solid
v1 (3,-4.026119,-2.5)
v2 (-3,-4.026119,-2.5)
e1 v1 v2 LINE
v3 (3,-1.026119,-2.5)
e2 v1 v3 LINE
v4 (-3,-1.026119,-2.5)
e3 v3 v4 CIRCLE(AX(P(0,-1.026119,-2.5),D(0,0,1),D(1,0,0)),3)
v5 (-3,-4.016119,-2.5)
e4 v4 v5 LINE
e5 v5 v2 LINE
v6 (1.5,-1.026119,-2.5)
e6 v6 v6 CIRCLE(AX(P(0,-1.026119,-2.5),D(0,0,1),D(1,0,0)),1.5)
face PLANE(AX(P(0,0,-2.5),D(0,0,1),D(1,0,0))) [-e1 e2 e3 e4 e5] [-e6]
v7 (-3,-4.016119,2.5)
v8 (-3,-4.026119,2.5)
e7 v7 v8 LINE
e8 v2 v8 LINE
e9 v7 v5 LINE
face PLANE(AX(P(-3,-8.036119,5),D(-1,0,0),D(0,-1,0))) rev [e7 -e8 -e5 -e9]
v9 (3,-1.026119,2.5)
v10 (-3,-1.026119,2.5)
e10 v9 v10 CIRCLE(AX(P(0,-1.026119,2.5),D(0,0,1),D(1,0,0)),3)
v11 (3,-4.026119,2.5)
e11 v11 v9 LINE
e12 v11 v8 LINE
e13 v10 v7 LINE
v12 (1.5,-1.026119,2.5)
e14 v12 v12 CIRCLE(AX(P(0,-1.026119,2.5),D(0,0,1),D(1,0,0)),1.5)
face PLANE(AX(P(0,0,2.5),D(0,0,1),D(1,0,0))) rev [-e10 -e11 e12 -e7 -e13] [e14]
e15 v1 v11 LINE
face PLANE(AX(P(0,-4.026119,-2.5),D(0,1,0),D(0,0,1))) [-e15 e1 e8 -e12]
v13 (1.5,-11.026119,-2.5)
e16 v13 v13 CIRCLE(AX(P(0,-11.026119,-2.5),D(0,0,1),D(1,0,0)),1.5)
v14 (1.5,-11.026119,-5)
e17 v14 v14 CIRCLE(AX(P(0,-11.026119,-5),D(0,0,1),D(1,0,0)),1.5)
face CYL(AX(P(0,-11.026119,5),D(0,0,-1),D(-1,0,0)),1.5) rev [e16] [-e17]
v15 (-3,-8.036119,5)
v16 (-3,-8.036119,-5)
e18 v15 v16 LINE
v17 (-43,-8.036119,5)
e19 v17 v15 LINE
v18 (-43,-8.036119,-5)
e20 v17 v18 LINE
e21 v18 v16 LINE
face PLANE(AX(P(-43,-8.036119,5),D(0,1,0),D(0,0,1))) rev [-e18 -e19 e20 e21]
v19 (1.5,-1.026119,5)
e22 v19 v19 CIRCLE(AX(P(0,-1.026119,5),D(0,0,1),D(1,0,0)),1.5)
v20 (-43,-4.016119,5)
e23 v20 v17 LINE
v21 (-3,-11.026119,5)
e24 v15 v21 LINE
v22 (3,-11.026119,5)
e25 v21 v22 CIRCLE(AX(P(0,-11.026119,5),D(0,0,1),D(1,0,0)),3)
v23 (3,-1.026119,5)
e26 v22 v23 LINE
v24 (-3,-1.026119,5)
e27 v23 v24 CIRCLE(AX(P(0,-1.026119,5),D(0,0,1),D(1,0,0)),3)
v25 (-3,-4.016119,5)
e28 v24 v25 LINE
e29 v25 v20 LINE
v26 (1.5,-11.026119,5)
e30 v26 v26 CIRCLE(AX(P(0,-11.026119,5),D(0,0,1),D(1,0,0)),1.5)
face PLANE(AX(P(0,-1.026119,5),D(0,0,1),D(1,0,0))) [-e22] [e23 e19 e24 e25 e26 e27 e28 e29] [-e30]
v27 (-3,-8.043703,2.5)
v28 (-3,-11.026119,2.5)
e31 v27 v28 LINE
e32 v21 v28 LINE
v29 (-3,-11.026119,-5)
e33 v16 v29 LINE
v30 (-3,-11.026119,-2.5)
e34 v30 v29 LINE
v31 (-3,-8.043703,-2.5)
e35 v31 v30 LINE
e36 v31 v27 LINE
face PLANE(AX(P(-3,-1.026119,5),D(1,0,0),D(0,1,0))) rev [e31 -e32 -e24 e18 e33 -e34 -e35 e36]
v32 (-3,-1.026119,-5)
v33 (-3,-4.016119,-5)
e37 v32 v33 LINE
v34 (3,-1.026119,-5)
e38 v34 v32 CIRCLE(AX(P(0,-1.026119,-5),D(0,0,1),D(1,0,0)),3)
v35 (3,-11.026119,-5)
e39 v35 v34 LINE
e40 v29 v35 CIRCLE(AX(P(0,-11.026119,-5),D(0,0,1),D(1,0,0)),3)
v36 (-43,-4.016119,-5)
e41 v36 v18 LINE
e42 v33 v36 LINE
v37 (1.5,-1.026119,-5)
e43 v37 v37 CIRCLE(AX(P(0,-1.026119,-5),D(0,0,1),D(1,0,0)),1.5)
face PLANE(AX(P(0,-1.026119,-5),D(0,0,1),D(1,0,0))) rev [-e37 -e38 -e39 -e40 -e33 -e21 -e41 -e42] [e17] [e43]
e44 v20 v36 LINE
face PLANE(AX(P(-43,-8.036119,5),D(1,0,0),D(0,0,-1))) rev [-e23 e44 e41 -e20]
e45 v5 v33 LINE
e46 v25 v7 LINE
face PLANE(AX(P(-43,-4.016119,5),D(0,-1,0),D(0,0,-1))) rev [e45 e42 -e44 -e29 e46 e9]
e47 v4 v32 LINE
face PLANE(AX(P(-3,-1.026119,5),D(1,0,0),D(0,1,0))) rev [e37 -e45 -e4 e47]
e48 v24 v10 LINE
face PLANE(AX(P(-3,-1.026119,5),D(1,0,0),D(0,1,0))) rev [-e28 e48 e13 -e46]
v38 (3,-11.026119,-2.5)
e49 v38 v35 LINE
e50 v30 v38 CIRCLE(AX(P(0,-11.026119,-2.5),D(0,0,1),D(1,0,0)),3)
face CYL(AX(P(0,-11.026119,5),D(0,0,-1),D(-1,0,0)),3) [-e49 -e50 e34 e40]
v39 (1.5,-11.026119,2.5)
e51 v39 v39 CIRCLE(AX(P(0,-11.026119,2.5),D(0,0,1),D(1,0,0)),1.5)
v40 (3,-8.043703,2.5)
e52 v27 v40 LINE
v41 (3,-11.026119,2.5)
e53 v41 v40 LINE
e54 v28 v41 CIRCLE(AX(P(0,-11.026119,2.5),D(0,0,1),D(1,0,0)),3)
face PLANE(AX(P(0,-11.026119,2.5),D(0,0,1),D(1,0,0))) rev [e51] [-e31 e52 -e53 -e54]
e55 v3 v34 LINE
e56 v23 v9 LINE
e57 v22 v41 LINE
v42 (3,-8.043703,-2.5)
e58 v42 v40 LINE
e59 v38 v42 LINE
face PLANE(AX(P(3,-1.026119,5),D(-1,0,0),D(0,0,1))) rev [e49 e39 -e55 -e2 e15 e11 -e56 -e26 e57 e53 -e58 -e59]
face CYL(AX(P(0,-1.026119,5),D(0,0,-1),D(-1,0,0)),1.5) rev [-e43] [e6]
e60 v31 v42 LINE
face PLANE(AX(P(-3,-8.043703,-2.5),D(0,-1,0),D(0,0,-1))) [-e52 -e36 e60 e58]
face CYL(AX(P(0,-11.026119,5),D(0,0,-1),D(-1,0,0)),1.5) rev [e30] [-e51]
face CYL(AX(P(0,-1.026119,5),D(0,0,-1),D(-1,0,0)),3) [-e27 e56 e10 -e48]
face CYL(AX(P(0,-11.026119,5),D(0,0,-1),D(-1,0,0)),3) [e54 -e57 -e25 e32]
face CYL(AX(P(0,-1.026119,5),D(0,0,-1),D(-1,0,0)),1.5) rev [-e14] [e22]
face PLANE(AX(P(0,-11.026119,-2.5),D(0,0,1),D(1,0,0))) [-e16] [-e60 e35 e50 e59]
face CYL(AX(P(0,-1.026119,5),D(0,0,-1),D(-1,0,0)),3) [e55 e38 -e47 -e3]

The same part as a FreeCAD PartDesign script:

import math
import FreeCAD as App
import Part
import Sketcher


def add_polygon(sketch, points):
    """Adds a closed chain of lines whose ends are joined by coincident constraints."""
    first, n = sketch.GeometryCount, len(points)
    for a, b in zip(points, points[1:] + points[:1]):
        sketch.addGeometry(Part.LineSegment(App.Vector(*a, 0), App.Vector(*b, 0)), False)
    for i in range(n):
        sketch.addConstraint(Sketcher.Constraint("Coincident", first + i, 2, first + (i + 1) % n, 1))

doc = App.newDocument("Part")
params = doc.addObject("Spreadsheet::Sheet", "Params")
for row, (alias, value) in enumerate([
    ("sketch1_diameter", "3 mm"),
    ("sketch1_radius", "3 mm"),
    ("sketch1_height", "10 mm"),
    ("pad1_length", "10 mm"),
    ("sketch2_radius", "3 mm"),
    ("sketch2_height", "3 mm"),
    ("pocket1_length", "5 mm"),
    ("sketch3_width", "40 mm"),
    ("sketch3_height", "4.02 mm"),
    ("pad2_length", "10 mm"),
], start=1):
    params.set(f"A{row}", alias)
    params.set(f"B{row}", "=" + value)
    params.setAlias(f"B{row}", alias)

body = doc.addObject("PartDesign::Body", "Body")

sketch1 = doc.addObject("Sketcher::SketchObject", "Sketch")
body.addObject(sketch1)
sketch1.AttachmentSupport = (doc.XY_Plane, [""])
sketch1.MapMode = "FlatFace"
sketch1.addGeometry([
    Part.LineSegment(App.Vector(-3, -1.026119, 0), App.Vector(-3, -11.026119, 0)),
    Part.ArcOfCircle(Part.Circle(App.Vector(0, -11.026119, 0), App.Vector(0, 0, 1), 3), math.radians(180), math.radians(360)),
    Part.LineSegment(App.Vector(3, -11.026119, 0), App.Vector(3, -1.026119, 0)),
    Part.ArcOfCircle(Part.Circle(App.Vector(0, -1.026119, 0), App.Vector(0, 0, 1), 3), math.radians(0), math.radians(180)),
    Part.Circle(App.Vector(0, -11.026119, 0), App.Vector(0, 0, 1), 1.5),
    Part.Circle(App.Vector(0, -1.026119, 0), App.Vector(0, 0, 1), 1.5),
], False)
sketch1.addConstraint([
    Sketcher.Constraint("Tangent", 0, 2, 1, 1),
    Sketcher.Constraint("Tangent", 1, 2, 2, 1),
    Sketcher.Constraint("Tangent", 2, 2, 3, 1),
    Sketcher.Constraint("Tangent", 3, 2, 0, 1),
    Sketcher.Constraint("Vertical", 0),
    Sketcher.Constraint("Vertical", 2),
    Sketcher.Constraint("Coincident", 4, 3, 1, 3),
    Sketcher.Constraint("Coincident", 5, 3, 3, 3),
    Sketcher.Constraint("Equal", 4, 5),
    Sketcher.Constraint("PointOnObject", 1, 3, -2),
    Sketcher.Constraint("Diameter", 4, 3.0),
    Sketcher.Constraint("Radius", 1, 3.0),
    Sketcher.Constraint("DistanceY", 0, 2, 0, 1, 10.0),
    Sketcher.Constraint("DistanceY", 1, 3, -1, 1, 11.026119),
])
sketch1.setExpression("Constraints[10]", "Params.sketch1_diameter")
sketch1.setExpression("Constraints[11]", "Params.sketch1_radius")
sketch1.setExpression("Constraints[12]", "Params.sketch1_height")
pad1 = doc.addObject("PartDesign::Pad", "Pad")
body.addObject(pad1)
pad1.Profile = sketch1
pad1.setExpression("Length", "Params.pad1_length")
pad1.Midplane = True

sketch2 = doc.addObject("Sketcher::SketchObject", "Sketch001")
body.addObject(sketch2)
sketch2.AttachmentSupport = (doc.XY_Plane, [""])
sketch2.MapMode = "FlatFace"
sketch2.addGeometry([
    Part.LineSegment(App.Vector(-3, -1.026119, 0), App.Vector(-3, -4.026119, 0)),
    Part.LineSegment(App.Vector(-3, -4.026119, 0), App.Vector(3, -4.026119, 0)),
    Part.LineSegment(App.Vector(3, -4.026119, 0), App.Vector(3, -1.026119, 0)),
    Part.ArcOfCircle(Part.Circle(App.Vector(0, -1.026119, 0), App.Vector(0, 0, 1), 3), math.radians(0), math.radians(180)),
    Part.ArcOfCircle(Part.Circle(App.Vector(0, -11.026119, 0), App.Vector(0, 0, 1), 3), math.radians(180), math.radians(360)),
    Part.LineSegment(App.Vector(3, -11.026119, 0), App.Vector(3, -8.043703, 0)),
    Part.LineSegment(App.Vector(3, -8.043703, 0), App.Vector(-3, -8.043703, 0)),
    Part.LineSegment(App.Vector(-3, -8.043703, 0), App.Vector(-3, -11.026119, 0)),
], False)
sketch2.addConstraint([
    Sketcher.Constraint("Coincident", 0, 2, 1, 1),
    Sketcher.Constraint("Coincident", 1, 2, 2, 1),
    Sketcher.Constraint("Tangent", 2, 2, 3, 1),
    Sketcher.Constraint("Tangent", 3, 2, 0, 1),
    Sketcher.Constraint("Tangent", 4, 2, 5, 1),
    Sketcher.Constraint("Coincident", 5, 2, 6, 1),
    Sketcher.Constraint("Coincident", 6, 2, 7, 1),
    Sketcher.Constraint("Tangent", 7, 2, 4, 1),
    Sketcher.Constraint("Vertical", 0),
    Sketcher.Constraint("Horizontal", 1),
    Sketcher.Constraint("Vertical", 2),
    Sketcher.Constraint("Vertical", 5),
    Sketcher.Constraint("Horizontal", 6),
    Sketcher.Constraint("Vertical", 7),
    Sketcher.Constraint("Equal", 3, 4),
    Sketcher.Constraint("PointOnObject", 3, 3, -2),
    Sketcher.Constraint("PointOnObject", 4, 3, -2),
    Sketcher.Constraint("Radius", 3, 3.0),
    Sketcher.Constraint("DistanceY", 0, 2, 0, 1, 3.0),
    Sketcher.Constraint("DistanceY", 4, 3, 3, 3, 10.0),
    Sketcher.Constraint("DistanceY", 5, 1, 5, 2, 2.982416),
    Sketcher.Constraint("DistanceY", 3, 3, -1, 1, 1.026119),
])
sketch2.setExpression("Constraints[17]", "Params.sketch2_radius")
sketch2.setExpression("Constraints[18]", "Params.sketch2_height")
pocket1 = doc.addObject("PartDesign::Pocket", "Pocket")
body.addObject(pocket1)
pocket1.Profile = sketch2
pocket1.setExpression("Length", "Params.pocket1_length")
pocket1.Midplane = True

sketch3 = doc.addObject("Sketcher::SketchObject", "Sketch002")
body.addObject(sketch3)
sketch3.AttachmentSupport = (doc.XY_Plane, [""])
sketch3.MapMode = "FlatFace"
add_polygon(sketch3, [(-43, -4.016119), (-43, -8.036119), (-3, -8.036119), (-3, -4.016119)])
sketch3.addConstraint([
    Sketcher.Constraint("Vertical", 0),
    Sketcher.Constraint("Horizontal", 1),
    Sketcher.Constraint("Vertical", 2),
    Sketcher.Constraint("Horizontal", 3),
    Sketcher.Constraint("DistanceX", 1, 1, 1, 2, 40.0),
    Sketcher.Constraint("DistanceX", 0, 2, -1, 1, 43.0),
    Sketcher.Constraint("DistanceY", 0, 2, 0, 1, 4.02),
    Sketcher.Constraint("DistanceY", 0, 2, -1, 1, 8.036119),
])
sketch3.setExpression("Constraints[8]", "Params.sketch3_width")
sketch3.setExpression("Constraints[10]", "Params.sketch3_height")
pad2 = doc.addObject("PartDesign::Pad", "Pad001")
body.addObject(pad2)
pad2.Profile = sketch3
pad2.setExpression("Length", "Params.pad2_length")
pad2.Midplane = True

doc.recompute()
